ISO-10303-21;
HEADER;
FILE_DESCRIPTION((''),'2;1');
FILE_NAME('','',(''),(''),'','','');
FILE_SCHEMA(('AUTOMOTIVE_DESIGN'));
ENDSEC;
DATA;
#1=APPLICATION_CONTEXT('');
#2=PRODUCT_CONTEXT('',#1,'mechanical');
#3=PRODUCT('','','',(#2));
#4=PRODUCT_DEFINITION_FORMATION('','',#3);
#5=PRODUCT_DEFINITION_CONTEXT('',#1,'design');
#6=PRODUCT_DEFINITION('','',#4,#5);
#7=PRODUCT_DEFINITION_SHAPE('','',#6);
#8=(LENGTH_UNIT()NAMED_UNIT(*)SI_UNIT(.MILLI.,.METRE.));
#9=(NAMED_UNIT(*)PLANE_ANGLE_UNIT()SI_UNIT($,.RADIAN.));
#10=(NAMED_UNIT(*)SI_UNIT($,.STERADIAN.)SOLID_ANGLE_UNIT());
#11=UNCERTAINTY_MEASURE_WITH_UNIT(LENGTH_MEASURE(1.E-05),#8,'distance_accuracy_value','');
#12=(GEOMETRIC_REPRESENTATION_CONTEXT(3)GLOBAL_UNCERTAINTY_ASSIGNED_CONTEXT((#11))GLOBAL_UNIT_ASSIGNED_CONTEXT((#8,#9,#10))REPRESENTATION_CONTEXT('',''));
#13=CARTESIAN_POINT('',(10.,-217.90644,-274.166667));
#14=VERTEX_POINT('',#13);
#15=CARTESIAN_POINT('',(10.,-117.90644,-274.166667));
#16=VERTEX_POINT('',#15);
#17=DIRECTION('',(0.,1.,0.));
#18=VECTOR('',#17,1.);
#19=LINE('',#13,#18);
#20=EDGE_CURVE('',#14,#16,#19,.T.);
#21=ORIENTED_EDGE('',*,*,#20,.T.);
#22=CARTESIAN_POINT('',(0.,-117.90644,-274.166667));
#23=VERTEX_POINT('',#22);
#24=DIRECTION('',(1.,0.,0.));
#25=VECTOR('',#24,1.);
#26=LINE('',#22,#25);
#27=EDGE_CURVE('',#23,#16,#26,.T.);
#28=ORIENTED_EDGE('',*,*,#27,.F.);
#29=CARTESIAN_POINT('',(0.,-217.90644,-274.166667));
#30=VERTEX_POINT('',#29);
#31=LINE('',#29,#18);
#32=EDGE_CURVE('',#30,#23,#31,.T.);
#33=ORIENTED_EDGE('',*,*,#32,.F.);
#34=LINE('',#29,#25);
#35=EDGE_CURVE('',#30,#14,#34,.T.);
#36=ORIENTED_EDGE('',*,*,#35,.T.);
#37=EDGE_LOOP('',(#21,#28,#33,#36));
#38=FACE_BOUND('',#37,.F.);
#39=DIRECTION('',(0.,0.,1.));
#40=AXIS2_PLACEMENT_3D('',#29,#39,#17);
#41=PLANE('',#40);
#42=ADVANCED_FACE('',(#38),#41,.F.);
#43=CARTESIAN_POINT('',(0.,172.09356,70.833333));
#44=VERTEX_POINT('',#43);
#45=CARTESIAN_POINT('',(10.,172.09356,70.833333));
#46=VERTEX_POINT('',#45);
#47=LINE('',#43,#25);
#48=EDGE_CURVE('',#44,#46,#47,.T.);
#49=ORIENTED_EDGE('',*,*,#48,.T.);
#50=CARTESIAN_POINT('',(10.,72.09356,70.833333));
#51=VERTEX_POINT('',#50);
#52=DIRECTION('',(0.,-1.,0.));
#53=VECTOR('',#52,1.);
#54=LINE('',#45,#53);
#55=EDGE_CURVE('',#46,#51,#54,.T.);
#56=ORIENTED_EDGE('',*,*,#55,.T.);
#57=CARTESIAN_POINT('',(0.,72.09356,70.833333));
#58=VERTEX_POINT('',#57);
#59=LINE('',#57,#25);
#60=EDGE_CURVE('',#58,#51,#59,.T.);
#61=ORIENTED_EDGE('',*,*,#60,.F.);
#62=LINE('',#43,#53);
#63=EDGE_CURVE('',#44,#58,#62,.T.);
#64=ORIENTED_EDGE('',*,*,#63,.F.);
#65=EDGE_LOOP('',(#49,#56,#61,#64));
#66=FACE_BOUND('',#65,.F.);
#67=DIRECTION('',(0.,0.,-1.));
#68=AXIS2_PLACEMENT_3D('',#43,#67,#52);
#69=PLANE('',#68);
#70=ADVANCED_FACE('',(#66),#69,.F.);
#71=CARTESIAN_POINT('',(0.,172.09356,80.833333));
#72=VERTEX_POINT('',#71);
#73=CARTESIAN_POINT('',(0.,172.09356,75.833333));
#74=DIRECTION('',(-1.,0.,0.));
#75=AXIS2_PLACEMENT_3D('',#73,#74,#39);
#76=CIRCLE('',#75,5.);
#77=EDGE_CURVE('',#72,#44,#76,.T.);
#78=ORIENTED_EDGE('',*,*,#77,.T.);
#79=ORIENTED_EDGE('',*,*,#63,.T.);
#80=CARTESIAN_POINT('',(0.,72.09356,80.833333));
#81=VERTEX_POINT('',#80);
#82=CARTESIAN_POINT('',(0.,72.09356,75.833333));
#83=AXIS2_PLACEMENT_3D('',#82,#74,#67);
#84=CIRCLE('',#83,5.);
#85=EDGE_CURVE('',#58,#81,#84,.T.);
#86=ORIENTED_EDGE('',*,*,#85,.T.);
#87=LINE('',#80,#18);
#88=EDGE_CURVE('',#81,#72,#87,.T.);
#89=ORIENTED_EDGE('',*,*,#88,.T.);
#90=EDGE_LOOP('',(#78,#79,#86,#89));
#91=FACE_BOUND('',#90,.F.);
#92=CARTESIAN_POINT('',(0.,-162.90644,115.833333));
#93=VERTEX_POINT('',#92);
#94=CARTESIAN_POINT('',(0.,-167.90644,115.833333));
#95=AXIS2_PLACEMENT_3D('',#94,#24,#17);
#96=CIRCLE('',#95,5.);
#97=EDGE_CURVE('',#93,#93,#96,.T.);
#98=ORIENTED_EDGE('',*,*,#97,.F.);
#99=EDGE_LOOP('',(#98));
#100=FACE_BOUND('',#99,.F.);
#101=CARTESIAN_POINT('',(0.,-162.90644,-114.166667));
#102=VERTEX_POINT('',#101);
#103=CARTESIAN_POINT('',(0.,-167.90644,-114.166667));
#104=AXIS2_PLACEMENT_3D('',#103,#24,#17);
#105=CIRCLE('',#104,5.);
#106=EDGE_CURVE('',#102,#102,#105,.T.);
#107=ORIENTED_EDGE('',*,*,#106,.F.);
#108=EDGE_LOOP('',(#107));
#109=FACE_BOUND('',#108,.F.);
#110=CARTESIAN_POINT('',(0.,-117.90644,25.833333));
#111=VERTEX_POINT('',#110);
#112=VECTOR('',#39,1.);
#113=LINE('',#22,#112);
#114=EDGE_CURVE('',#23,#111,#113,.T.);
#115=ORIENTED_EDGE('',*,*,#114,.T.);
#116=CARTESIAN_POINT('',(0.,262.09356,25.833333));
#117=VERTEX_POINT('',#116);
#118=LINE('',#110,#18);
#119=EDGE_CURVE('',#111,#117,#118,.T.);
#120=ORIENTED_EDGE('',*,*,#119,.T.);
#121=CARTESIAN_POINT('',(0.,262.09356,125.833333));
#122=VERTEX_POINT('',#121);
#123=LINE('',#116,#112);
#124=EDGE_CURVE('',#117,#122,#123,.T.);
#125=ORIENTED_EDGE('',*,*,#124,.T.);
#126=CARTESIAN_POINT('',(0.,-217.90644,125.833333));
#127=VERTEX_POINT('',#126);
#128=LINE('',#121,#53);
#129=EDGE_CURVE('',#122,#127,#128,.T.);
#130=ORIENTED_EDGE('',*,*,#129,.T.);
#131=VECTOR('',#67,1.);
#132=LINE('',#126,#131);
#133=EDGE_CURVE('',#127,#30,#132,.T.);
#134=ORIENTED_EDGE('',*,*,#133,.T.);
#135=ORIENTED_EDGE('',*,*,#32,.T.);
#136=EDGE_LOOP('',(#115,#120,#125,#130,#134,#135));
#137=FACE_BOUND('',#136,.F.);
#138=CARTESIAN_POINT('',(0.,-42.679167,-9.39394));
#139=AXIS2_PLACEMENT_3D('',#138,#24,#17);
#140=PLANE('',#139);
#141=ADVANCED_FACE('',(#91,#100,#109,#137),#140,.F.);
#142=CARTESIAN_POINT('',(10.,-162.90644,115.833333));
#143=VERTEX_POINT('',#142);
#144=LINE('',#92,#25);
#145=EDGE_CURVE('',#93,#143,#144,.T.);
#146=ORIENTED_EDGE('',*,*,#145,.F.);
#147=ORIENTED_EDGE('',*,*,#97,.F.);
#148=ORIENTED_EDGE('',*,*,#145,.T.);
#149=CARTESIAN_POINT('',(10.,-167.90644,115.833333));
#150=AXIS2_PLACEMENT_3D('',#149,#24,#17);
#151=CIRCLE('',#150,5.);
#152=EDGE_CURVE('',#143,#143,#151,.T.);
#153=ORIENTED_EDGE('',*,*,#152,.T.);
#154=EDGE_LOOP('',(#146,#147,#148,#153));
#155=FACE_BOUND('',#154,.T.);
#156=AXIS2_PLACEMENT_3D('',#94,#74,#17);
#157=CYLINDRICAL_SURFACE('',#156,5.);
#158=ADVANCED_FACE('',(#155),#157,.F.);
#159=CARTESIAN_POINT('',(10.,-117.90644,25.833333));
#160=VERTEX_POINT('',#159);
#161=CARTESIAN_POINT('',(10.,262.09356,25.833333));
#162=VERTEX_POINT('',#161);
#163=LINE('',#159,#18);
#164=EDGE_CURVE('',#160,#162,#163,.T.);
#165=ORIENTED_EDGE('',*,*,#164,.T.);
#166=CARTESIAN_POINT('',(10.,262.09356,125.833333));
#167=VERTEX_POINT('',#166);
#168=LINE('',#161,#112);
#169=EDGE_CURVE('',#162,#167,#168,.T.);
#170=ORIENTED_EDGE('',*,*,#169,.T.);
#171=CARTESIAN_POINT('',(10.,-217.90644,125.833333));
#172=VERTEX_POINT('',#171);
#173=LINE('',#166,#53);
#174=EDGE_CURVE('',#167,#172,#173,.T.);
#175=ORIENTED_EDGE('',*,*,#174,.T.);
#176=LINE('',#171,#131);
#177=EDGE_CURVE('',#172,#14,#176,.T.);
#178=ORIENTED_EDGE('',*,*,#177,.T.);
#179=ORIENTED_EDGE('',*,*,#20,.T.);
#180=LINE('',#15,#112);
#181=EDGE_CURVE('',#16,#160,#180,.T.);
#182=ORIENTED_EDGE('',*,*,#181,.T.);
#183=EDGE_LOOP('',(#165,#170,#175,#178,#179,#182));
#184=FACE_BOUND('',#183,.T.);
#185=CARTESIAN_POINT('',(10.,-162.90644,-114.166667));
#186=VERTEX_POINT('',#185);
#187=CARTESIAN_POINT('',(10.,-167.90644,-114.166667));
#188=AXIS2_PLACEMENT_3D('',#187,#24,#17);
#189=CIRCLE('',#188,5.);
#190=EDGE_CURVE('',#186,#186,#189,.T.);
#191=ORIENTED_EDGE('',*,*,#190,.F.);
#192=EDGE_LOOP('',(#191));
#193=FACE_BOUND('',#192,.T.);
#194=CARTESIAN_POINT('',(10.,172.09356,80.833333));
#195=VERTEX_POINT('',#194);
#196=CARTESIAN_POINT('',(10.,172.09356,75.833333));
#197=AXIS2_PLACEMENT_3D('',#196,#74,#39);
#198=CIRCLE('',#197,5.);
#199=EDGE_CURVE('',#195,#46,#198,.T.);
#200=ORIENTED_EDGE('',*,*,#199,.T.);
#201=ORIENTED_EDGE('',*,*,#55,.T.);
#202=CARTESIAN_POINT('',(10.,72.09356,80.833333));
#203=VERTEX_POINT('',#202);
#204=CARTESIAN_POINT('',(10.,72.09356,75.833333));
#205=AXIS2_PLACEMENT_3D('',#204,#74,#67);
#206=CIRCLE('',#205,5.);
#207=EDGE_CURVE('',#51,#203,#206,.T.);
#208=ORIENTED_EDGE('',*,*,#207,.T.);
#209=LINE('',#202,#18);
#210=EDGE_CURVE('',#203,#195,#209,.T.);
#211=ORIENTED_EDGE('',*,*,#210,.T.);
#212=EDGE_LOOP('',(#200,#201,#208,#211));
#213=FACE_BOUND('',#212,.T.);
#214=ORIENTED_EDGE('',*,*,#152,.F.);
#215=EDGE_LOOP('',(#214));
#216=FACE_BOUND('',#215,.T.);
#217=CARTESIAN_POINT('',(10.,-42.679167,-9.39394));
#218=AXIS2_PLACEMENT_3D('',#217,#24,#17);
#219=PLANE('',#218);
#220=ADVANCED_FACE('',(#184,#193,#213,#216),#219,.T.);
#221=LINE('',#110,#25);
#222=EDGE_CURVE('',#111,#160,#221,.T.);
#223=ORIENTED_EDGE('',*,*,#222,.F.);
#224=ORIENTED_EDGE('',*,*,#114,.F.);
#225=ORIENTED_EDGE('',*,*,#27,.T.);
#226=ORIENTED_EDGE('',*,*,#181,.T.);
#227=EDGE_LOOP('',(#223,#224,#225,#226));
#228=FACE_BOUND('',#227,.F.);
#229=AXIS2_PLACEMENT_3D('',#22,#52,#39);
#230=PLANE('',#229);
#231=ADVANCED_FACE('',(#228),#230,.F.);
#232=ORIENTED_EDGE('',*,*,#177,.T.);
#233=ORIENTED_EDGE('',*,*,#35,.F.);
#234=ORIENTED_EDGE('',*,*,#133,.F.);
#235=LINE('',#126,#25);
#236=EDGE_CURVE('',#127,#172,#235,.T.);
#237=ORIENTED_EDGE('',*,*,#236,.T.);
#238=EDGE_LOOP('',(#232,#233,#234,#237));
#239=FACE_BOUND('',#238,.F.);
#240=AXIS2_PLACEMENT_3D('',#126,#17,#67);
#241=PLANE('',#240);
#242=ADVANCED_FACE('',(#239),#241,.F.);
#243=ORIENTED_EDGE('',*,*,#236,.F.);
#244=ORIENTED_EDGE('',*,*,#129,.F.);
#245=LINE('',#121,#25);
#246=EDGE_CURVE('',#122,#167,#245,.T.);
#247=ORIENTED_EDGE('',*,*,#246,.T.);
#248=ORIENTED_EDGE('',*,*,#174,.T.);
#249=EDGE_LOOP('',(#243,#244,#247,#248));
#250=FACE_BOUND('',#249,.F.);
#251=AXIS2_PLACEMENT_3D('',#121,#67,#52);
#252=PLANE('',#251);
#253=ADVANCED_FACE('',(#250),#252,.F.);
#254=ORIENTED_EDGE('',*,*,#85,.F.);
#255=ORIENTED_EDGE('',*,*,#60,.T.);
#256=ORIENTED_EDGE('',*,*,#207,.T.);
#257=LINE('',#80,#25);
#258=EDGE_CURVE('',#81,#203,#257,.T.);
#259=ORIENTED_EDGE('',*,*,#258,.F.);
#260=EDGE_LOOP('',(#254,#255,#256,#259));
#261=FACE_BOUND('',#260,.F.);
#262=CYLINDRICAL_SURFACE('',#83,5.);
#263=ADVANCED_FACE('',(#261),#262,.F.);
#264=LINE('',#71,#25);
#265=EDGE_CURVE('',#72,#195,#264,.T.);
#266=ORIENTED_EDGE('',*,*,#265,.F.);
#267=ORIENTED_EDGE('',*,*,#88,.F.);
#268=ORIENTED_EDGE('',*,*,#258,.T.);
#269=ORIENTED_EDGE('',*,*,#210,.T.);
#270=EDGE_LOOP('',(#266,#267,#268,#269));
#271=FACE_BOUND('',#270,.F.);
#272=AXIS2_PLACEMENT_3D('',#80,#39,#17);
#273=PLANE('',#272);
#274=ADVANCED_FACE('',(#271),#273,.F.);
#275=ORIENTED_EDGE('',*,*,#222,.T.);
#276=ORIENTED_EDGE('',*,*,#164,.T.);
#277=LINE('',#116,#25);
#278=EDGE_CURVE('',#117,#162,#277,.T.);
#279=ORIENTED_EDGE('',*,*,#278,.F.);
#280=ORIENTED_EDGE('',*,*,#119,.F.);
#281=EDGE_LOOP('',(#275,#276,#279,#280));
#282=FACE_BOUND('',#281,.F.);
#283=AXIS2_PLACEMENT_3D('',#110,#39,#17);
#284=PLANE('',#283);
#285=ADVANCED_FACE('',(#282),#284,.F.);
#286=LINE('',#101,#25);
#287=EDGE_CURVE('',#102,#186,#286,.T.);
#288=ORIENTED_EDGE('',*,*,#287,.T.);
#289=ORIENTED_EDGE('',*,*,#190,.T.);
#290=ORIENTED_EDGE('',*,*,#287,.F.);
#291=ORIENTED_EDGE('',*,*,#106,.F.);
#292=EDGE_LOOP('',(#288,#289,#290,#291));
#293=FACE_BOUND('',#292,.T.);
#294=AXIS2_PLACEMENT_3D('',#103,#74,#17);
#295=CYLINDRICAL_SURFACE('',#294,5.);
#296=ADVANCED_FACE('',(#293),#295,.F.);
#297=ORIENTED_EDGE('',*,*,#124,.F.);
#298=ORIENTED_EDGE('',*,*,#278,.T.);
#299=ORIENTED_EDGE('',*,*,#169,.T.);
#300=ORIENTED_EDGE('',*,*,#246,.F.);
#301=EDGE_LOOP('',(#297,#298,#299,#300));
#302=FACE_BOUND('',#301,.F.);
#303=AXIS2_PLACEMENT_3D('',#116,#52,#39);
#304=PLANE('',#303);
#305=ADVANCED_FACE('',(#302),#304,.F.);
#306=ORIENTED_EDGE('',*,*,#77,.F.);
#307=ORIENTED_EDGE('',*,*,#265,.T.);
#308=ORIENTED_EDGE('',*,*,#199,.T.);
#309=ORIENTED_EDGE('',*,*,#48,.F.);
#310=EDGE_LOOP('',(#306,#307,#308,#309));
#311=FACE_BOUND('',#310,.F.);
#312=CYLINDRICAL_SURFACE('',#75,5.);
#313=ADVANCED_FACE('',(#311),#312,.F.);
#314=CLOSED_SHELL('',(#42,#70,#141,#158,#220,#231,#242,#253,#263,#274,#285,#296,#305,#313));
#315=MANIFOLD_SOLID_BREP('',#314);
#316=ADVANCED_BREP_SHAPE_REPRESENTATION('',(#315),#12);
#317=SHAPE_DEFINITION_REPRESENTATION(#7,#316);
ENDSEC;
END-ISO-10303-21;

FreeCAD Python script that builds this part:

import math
import FreeCAD as App
import Part
import Sketcher


def add_polygon(sketch, points):
    """Adds a closed chain of lines whose ends are joined by coincident constraints."""
    first, n = sketch.GeometryCount, len(points)
    for a, b in zip(points, points[1:] + points[:1]):
        sketch.addGeometry(Part.LineSegment(App.Vector(*a, 0), App.Vector(*b, 0)), False)
    for i in range(n):
        sketch.addConstraint(Sketcher.Constraint("Coincident", first + i, 2, first + (i + 1) % n, 1))

doc = App.newDocument("Part")
params = doc.addObject("Spreadsheet::Sheet", "Params")
for row, (alias, value) in enumerate([
    ("sketch1_diameter", "10 mm"),
    ("sketch1_width", "100 mm"),
    ("sketch1_width2", "380 mm"),
    ("sketch1_height", "400 mm"),
    ("pad1_length", "10 mm"),
], start=1):
    params.set(f"A{row}", alias)
    params.set(f"B{row}", "=" + value)
    params.setAlias(f"B{row}", alias)

body = doc.addObject("PartDesign::Body", "Body")

sketch1 = body.newObject("Sketcher::SketchObject", "Sketch")
sketch1.AttachmentSupport = (doc.getObject("YZ_Plane"), [""])
sketch1.MapMode = "FlatFace"
add_polygon(sketch1, [(-218, 126), (-218, -274), (-118, -274), (-118, 26), (262, 26), (262, 126)])
sketch1.addGeometry(Part.Circle(App.Vector(-168, -114, 0), App.Vector(0, 0, 1), 5), False)
sketch1.addGeometry(Part.Circle(App.Vector(-168, 116, 0), App.Vector(0, 0, 1), 5), False)
sketch1.addGeometry(Part.LineSegment(App.Vector(72, 81, 0), App.Vector(172, 81, 0)), False)
sketch1.addGeometry(Part.ArcOfCircle(Part.Circle(App.Vector(172, 76, 0), App.Vector(0, 0, 1), 5), math.radians(-90), math.radians(90)), False)
sketch1.addGeometry(Part.LineSegment(App.Vector(172, 71, 0), App.Vector(72, 71, 0)), False)
sketch1.addGeometry(Part.ArcOfCircle(Part.Circle(App.Vector(72, 76, 0), App.Vector(0, 0, 1), 5), math.radians(90), math.radians(270)), False)
sketch1.addConstraint([
    Sketcher.Constraint("Tangent", 8, 2, 9, 2),
    Sketcher.Constraint("Tangent", 9, 1, 10, 1),
    Sketcher.Constraint("Tangent", 10, 2, 11, 2),
    Sketcher.Constraint("Tangent", 11, 1, 8, 1),
    Sketcher.Constraint("Vertical", 0),
    Sketcher.Constraint("Horizontal", 1),
    Sketcher.Constraint("Vertical", 2),
    Sketcher.Constraint("Horizontal", 3),
    Sketcher.Constraint("Vertical", 4),
    Sketcher.Constraint("Horizontal", 5),
    Sketcher.Constraint("Horizontal", 8),
    Sketcher.Constraint("Horizontal", 10),
    Sketcher.Constraint("Equal", 6, 7),
    Sketcher.Constraint("Equal", 7, 9),
    Sketcher.Constraint("Vertical", 6, 3, 7, 3),
    Sketcher.Constraint("Equal", 1, 8),
    Sketcher.Constraint("Equal", 10, 4),
    Sketcher.Constraint("Diameter", 6, 10.0),
    Sketcher.Constraint("DistanceX", 1, 1, 1, 2, 100.0),
    Sketcher.Constraint("DistanceX", 3, 1, 3, 2, 380.0),
    Sketcher.Constraint("DistanceY", 0, 2, 0, 1, 400.0),
    Sketcher.Constraint("DistanceY", 6, 3, 7, 3, 230.0),
    Sketcher.Constraint("DistanceX", 7, 3, 9, 3, 340.0),
    Sketcher.Constraint("DistanceY", 9, 3, 7, 3, 40.0),
    Sketcher.Constraint("DistanceX", 0, 2, 6, 3, 50.0),
    Sketcher.Constraint("DistanceY", 0, 2, 6, 3, 160.0),
    Sketcher.Constraint("DistanceX", 6, 3, -1, 1, 167.90644),
    Sketcher.Constraint("DistanceY", 6, 3, -1, 1, 114.166667),
])
sketch1.setExpression("Constraints[23]", "Params.sketch1_diameter")
sketch1.setExpression("Constraints[24]", "Params.sketch1_width")
sketch1.setExpression("Constraints[25]", "Params.sketch1_width2")
sketch1.setExpression("Constraints[26]", "Params.sketch1_height")
pad1 = body.newObject("PartDesign::Pad", "Pad")
pad1.Profile = sketch1
pad1.setExpression("Length", "Params.pad1_length")

doc.recompute()
